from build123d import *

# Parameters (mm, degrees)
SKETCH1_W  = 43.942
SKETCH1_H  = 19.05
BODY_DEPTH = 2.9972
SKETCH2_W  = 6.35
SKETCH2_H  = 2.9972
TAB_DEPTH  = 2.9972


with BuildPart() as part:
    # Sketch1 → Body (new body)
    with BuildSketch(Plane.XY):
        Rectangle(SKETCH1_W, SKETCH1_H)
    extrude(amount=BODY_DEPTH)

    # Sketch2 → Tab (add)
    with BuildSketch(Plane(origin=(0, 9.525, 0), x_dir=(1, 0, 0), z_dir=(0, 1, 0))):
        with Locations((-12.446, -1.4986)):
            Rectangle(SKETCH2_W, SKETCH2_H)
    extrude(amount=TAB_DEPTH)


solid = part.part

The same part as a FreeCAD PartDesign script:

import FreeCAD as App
import Part
import Sketcher
from FreeCAD import Vector
Q = App.Units.Quantity

doc = App.newDocument("Part")
body = doc.addObject("PartDesign::Body", "Body")

# Sketch on XY plane
sketch1 = doc.addObject("Sketcher::SketchObject", "Sketch")
body.addObject(sketch1)
sketch1.AttachmentSupport = (doc.XY_Plane, [""])
sketch1.MapMode = "FlatFace"
sketch1.addGeometry(Part.LineSegment(Vector(-21.971, 9.525, 0), Vector(-21.971, -9.525, 0)), False)
sketch1.addGeometry(Part.LineSegment(Vector(-21.971, -9.525, 0), Vector(21.971, -9.525, 0)), False)
sketch1.addGeometry(Part.LineSegment(Vector(21.971, -9.525, 0), Vector(21.971, 9.525, 0)), False)
sketch1.addGeometry(Part.LineSegment(Vector(21.971, 9.525, 0), Vector(-21.971, 9.525, 0)), False)
sketch1.addConstraint(Sketcher.Constraint("Coincident", 0, 2, 1, 1))
sketch1.addConstraint(Sketcher.Constraint("Coincident", 1, 2, 2, 1))
sketch1.addConstraint(Sketcher.Constraint("Coincident", 2, 2, 3, 1))
sketch1.addConstraint(Sketcher.Constraint("Coincident", 3, 2, 0, 1))
sketch1.addConstraint(Sketcher.Constraint("Vertical", 0))
sketch1.addConstraint(Sketcher.Constraint("Horizontal", 1))
sketch1.addConstraint(Sketcher.Constraint("Vertical", 2))
sketch1.addConstraint(Sketcher.Constraint("Horizontal", 3))
sketch1.addConstraint(Sketcher.Constraint("Symmetric", 0, 2, 2, 2, -1, 1))
sketch1.addConstraint(Sketcher.Constraint("DistanceX", 1, 1, 1, 2, Q("1.73 in")))
sketch1.addConstraint(Sketcher.Constraint("DistanceY", 0, 2, 0, 1, Q("0.75 in")))
pad1 = doc.addObject("PartDesign::Pad", "Pad")
body.addObject(pad1)
pad1.Profile = sketch1
pad1.Length = Q("0.118 in")

# Sketch on XZ plane
sketch2 = doc.addObject("Sketcher::SketchObject", "Sketch001")
body.addObject(sketch2)
sketch2.AttachmentSupport = (doc.XZ_Plane, [""])
sketch2.MapMode = "FlatFace"
sketch2.AttachmentOffset = App.Placement(Vector(0, 0, -0.375 * 25.4), App.Rotation())
sketch2.addGeometry(Part.LineSegment(Vector(-15.621, 0, 0), Vector(-15.621, 2.9972, 0)), False)
sketch2.addGeometry(Part.LineSegment(Vector(-15.621, 2.9972, 0), Vector(-9.271, 2.9972, 0)), False)
sketch2.addGeometry(Part.LineSegment(Vector(-9.271, 2.9972, 0), Vector(-9.271, 0, 0)), False)
sketch2.addGeometry(Part.LineSegment(Vector(-9.271, 0, 0), Vector(-15.621, 0, 0)), False)
sketch2.addConstraint(Sketcher.Constraint("Coincident", 0, 2, 1, 1))
sketch2.addConstraint(Sketcher.Constraint("Coincident", 1, 2, 2, 1))
sketch2.addConstraint(Sketcher.Constraint("Coincident", 2, 2, 3, 1))
sketch2.addConstraint(Sketcher.Constraint("Coincident", 3, 2, 0, 1))
sketch2.addConstraint(Sketcher.Constraint("Vertical", 0))
sketch2.addConstraint(Sketcher.Constraint("Horizontal", 1))
sketch2.addConstraint(Sketcher.Constraint("Vertical", 2))
sketch2.addConstraint(Sketcher.Constraint("Horizontal", 3))
sketch2.addConstraint(Sketcher.Constraint("PointOnObject", 2, 2, -1))
sketch2.addConstraint(Sketcher.Constraint("DistanceX", 1, 1, 1, 2, Q("0.25 in")))
sketch2.addConstraint(Sketcher.Constraint("DistanceY", 0, 1, 0, 2, Q("0.118 in")))
sketch2.addConstraint(Sketcher.Constraint("DistanceX", 0, 2, -1, 1, Q("0.615 in")))
pad2 = doc.addObject("PartDesign::Pad", "Pad001")
body.addObject(pad2)
pad2.Profile = sketch2
pad2.Length = Q("0.118 in")
pad2.Reversed = True

doc.recompute()
